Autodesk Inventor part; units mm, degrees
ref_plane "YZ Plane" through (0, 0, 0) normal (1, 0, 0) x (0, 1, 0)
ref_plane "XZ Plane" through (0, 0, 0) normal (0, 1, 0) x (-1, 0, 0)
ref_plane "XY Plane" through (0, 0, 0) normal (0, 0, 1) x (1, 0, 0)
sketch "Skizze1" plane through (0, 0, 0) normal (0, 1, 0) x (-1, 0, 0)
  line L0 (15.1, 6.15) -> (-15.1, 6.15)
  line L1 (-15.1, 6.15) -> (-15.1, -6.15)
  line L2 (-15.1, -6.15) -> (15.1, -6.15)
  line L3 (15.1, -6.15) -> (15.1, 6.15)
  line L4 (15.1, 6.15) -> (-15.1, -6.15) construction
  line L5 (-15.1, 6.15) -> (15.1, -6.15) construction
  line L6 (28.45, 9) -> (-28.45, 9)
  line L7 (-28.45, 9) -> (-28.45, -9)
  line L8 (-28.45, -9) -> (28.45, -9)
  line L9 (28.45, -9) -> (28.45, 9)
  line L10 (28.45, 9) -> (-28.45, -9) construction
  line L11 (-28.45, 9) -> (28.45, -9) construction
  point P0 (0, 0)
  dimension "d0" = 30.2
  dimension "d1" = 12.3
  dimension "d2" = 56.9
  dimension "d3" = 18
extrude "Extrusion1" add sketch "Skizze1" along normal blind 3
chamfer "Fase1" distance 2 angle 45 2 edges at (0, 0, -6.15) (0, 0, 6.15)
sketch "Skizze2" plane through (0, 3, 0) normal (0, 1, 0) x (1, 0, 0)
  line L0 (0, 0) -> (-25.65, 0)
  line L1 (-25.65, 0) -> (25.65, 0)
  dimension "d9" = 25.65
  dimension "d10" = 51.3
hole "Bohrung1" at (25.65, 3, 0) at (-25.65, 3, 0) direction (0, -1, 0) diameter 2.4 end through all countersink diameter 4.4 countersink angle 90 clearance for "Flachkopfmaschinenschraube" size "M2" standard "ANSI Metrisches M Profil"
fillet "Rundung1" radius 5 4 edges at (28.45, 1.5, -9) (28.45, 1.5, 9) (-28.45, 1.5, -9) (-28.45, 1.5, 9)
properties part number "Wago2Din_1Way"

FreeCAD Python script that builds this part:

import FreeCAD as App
import Part
import Sketcher

V = App.Vector
Q = App.Units.Quantity


def edges_at(feature, points):
    """Names of the edges that pass closest to the given points."""
    edges = feature.Shape.Edges
    near = lambda p: min(range(len(edges)), key=lambda i: edges[i].distToShape(Part.Vertex(*p))[0])
    return sorted({f"Edge{near(p) + 1}" for p in points})


def add_polygon(sketch, points):
    """Adds a closed chain of lines whose ends are joined by coincident constraints."""
    first, n = sketch.GeometryCount, len(points)
    for a, b in zip(points, points[1:] + points[:1]):
        sketch.addGeometry(Part.LineSegment(App.Vector(*a, 0), App.Vector(*b, 0)), False)
    for i in range(n):
        sketch.addConstraint(Sketcher.Constraint("Coincident", first + i, 2, first + (i + 1) % n, 1))

doc = App.newDocument("Part")
body = doc.addObject("PartDesign::Body", "Body")

# Sketch on XZ plane
sketch1 = body.newObject("Sketcher::SketchObject", "Sketch")
sketch1.AttachmentSupport = (doc.getObject("XZ_Plane"), [""])
sketch1.MapMode = "FlatFace"
add_polygon(sketch1, [(-28.45, -9), (-28.45, 9), (28.45, 9), (28.45, -9)])  # lines 0-3
add_polygon(sketch1, [(15.1, 6.15), (-15.1, 6.15), (-15.1, -6.15), (15.1, -6.15)])  # lines 4-7
sketch1.addConstraint(Sketcher.Constraint("Vertical", 0))
sketch1.addConstraint(Sketcher.Constraint("Horizontal", 1))
sketch1.addConstraint(Sketcher.Constraint("Vertical", 2))
sketch1.addConstraint(Sketcher.Constraint("Horizontal", 3))
sketch1.addConstraint(Sketcher.Constraint("Horizontal", 4))
sketch1.addConstraint(Sketcher.Constraint("Vertical", 5))
sketch1.addConstraint(Sketcher.Constraint("Horizontal", 6))
sketch1.addConstraint(Sketcher.Constraint("Vertical", 7))
sketch1.addConstraint(Sketcher.Constraint("Symmetric", 0, 2, 2, 2, -1, 1))
sketch1.addConstraint(Sketcher.Constraint("Symmetric", 4, 2, 6, 2, -1, 1))
sketch1.addConstraint(Sketcher.Constraint("DistanceY", 0, 1, 0, 2, Q("18 mm")))
sketch1.addConstraint(Sketcher.Constraint("DistanceX", 1, 1, 1, 2, Q("56.9 mm")))
sketch1.addConstraint(Sketcher.Constraint("DistanceX", 4, 2, 4, 1, Q("30.2 mm")))
sketch1.addConstraint(Sketcher.Constraint("DistanceY", 5, 2, 5, 1, Q("12.3 mm")))
pad1 = body.newObject("PartDesign::Pad", "Pad")
pad1.Profile = sketch1
pad1.Length = 3
pad1.Reversed = True
doc.recompute()

chamfer = body.newObject("PartDesign::Chamfer", "Chamfer")
chamfer.Base = (pad1, edges_at(pad1, [(0, 0, -6.15), (0, 0, 6.15)]))
chamfer.Size = 2

# Sketch on XZ plane
sketch2 = body.newObject("Sketcher::SketchObject", "Sketch001")
sketch2.AttachmentSupport = (doc.getObject("XZ_Plane"), [""])
sketch2.MapMode = "FlatFace"
sketch2.AttachmentOffset = App.Placement(V(0, 0, -3), App.Rotation())
sketch2.addGeometry(Part.Circle(V(25.65, 0, 0), V(0, 0, 1), 1.2), False)
sketch2.addGeometry(Part.Circle(V(-25.65, 0, 0), V(0, 0, 1), 1.2), False)
sketch2.addConstraint(Sketcher.Constraint("Equal", 0, 1))
sketch2.addConstraint(Sketcher.Constraint("Symmetric", 0, 3, 1, 3, -1, 1))
sketch2.addConstraint(Sketcher.Constraint("PointOnObject", 0, 3, -1))
sketch2.addConstraint(Sketcher.Constraint("Diameter", 0, Q("2.4 mm")))
sketch2.addConstraint(Sketcher.Constraint("DistanceX", 1, 3, 0, 3, Q("51.3 mm")))
doc.recompute()
hole = body.newObject("PartDesign::Hole", "Hole")
hole.Profile = sketch2
hole.ThreadType = "None"
hole.Diameter = 2.4
hole.DepthType = "ThroughAll"
hole.HoleCutType = "Countersink"
hole.HoleCutDiameter = 4.4
hole.HoleCutCountersinkAngle = 90
hole.Reversed = True
doc.recompute()

fillet = body.newObject("PartDesign::Fillet", "Fillet")
fillet.Base = (hole, edges_at(hole, [
    (28.45, 1.5, -9),
    (28.45, 1.5, 9),
    (-28.45, 1.5, -9),
    (-28.45, 1.5, 9),
]))
fillet.Radius = 5

doc.recompute()
